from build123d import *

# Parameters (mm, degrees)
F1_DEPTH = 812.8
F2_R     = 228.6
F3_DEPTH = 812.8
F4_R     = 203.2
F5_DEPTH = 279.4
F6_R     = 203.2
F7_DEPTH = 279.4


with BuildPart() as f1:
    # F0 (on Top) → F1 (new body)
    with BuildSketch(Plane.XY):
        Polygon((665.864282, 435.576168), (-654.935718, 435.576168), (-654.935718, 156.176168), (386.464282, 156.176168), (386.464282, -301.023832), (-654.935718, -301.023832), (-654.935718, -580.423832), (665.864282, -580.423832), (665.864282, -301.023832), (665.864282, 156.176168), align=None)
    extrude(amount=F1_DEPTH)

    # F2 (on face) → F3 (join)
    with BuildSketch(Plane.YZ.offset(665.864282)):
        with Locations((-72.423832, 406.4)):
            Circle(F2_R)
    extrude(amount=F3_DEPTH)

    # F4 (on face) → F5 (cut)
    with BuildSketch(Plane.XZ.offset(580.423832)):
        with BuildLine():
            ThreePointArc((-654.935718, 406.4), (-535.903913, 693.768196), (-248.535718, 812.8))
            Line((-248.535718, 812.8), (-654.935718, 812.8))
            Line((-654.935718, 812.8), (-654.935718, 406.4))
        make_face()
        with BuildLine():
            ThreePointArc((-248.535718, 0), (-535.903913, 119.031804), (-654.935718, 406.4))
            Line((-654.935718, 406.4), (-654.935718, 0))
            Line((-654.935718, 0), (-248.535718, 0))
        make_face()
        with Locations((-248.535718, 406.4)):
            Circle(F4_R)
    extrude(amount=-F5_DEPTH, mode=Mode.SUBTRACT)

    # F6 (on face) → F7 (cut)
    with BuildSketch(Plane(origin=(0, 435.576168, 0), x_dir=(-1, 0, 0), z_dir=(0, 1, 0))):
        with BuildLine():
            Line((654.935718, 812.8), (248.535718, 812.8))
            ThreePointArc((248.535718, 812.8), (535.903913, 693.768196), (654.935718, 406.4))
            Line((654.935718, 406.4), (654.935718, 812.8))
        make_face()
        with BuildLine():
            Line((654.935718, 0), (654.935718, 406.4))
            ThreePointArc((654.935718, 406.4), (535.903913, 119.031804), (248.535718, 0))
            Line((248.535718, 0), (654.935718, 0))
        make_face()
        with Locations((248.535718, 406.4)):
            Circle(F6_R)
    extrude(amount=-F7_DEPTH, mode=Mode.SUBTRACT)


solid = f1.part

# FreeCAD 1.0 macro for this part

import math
import FreeCAD as App
import Part
import Sketcher

V = App.Vector
Q = App.Units.Quantity

doc = App.newDocument("Part")
body = doc.addObject("PartDesign::Body", "Body")

sketch1 = body.newObject("Sketcher::SketchObject", "Sketch")
sketch1.AttachmentSupport = (doc.getObject("XY_Plane"), [""])
sketch1.MapMode = "FlatFace"
sketch1.addGeometry(Part.LineSegment(V(666, 436, 0), V(-655, 436, 0)), False)
sketch1.addGeometry(Part.LineSegment(V(-655, 436, 0), V(-655, 156, 0)), False)
sketch1.addGeometry(Part.LineSegment(V(-655, 156, 0), V(386, 156, 0)), False)
sketch1.addGeometry(Part.LineSegment(V(386, 156, 0), V(386, -301, 0)), False)
sketch1.addGeometry(Part.LineSegment(V(386, -301, 0), V(-655, -301, 0)), False)
sketch1.addGeometry(Part.LineSegment(V(-655, -301, 0), V(-655, -580, 0)), False)
sketch1.addGeometry(Part.LineSegment(V(-655, -580, 0), V(666, -580, 0)), False)
sketch1.addGeometry(Part.LineSegment(V(666, -580, 0), V(666, 436, 0)), False)
sketch1.addConstraint(Sketcher.Constraint("Coincident", 0, 2, 1, 1))
sketch1.addConstraint(Sketcher.Constraint("Coincident", 1, 2, 2, 1))
sketch1.addConstraint(Sketcher.Constraint("Coincident", 2, 2, 3, 1))
sketch1.addConstraint(Sketcher.Constraint("Coincident", 3, 2, 4, 1))
sketch1.addConstraint(Sketcher.Constraint("Coincident", 4, 2, 5, 1))
sketch1.addConstraint(Sketcher.Constraint("Coincident", 5, 2, 6, 1))
sketch1.addConstraint(Sketcher.Constraint("Coincident", 6, 2, 7, 1))
sketch1.addConstraint(Sketcher.Constraint("Coincident", 7, 2, 0, 1))
sketch1.addConstraint(Sketcher.Constraint("Horizontal", 0))
sketch1.addConstraint(Sketcher.Constraint("Vertical", 1))
sketch1.addConstraint(Sketcher.Constraint("Horizontal", 2))
sketch1.addConstraint(Sketcher.Constraint("Vertical", 3))
sketch1.addConstraint(Sketcher.Constraint("Horizontal", 4))
sketch1.addConstraint(Sketcher.Constraint("Vertical", 5))
sketch1.addConstraint(Sketcher.Constraint("Horizontal", 6))
sketch1.addConstraint(Sketcher.Constraint("Vertical", 7))
sketch1.addConstraint(Sketcher.Constraint("Vertical", 1, 2, 4, 2))
sketch1.addConstraint(Sketcher.Constraint("Equal", 1, 5))
sketch1.addConstraint(Sketcher.Constraint("DistanceX", 0, 2, 0, 1, Q("52 in")))
sketch1.addConstraint(Sketcher.Constraint("DistanceX", 2, 1, 2, 2, Q("41 in")))
sketch1.addConstraint(Sketcher.Constraint("DistanceY", 1, 2, 1, 1, Q("11 in")))
sketch1.addConstraint(Sketcher.Constraint("DistanceY", 3, 2, 3, 1, Q("18 in")))
sketch1.addConstraint(Sketcher.Constraint("DistanceX", 0, 2, -1, 1, 654.935718))
sketch1.addConstraint(Sketcher.Constraint("DistanceY", -1, 1, 0, 2, 435.576168))
pad1 = body.newObject("PartDesign::Pad", "Pad")
pad1.Profile = sketch1
pad1.Length = Q("32 in")

sketch2 = body.newObject("Sketcher::SketchObject", "Sketch001")
sketch2.AttachmentSupport = (doc.getObject("YZ_Plane"), [""])
sketch2.MapMode = "FlatFace"
sketch2.AttachmentOffset = App.Placement(V(0, 0, 665.864282), App.Rotation())
sketch2.addGeometry(Part.Circle(V(-72, 406, 0), V(0, 0, 1), 229), False)
sketch2.addConstraint(Sketcher.Constraint("Diameter", 0, Q("18 in")))
sketch2.addConstraint(Sketcher.Constraint("DistanceY", -1, 1, 0, 3, Q("16 in")))
sketch2.addConstraint(Sketcher.Constraint("DistanceX", 0, 3, -1, 1, 72.423832))
pad2 = body.newObject("PartDesign::Pad", "Pad001")
pad2.Profile = sketch2
pad2.Length = Q("32 in")

sketch3 = body.newObject("Sketcher::SketchObject", "Sketch002")
sketch3.AttachmentSupport = (doc.getObject("XZ_Plane"), [""])
sketch3.MapMode = "FlatFace"
sketch3.AttachmentOffset = App.Placement(V(0, 0, 580.423832), App.Rotation())
sketch3.addGeometry(Part.ArcOfCircle(Part.Circle(V(-249, 406, 0), V(0, 0, 1), 406), math.radians(90), math.radians(180)), False)
sketch3.addGeometry(Part.LineSegment(V(-249, 813, 0), V(-655, 813, 0)), False)
sketch3.addGeometry(Part.LineSegment(V(-655, 813, 0), V(-655, 406, 0)), False)
sketch3.addGeometry(Part.ArcOfCircle(Part.Circle(V(-249, 406, 0), V(0, 0, 1), 406), math.radians(-180), math.radians(-90)), False)
sketch3.addGeometry(Part.LineSegment(V(-655, 406, 0), V(-655, 0, 0)), False)
sketch3.addGeometry(Part.LineSegment(V(-655, 0, 0), V(-249, 0, 0)), False)
sketch3.addGeometry(Part.Circle(V(-249, 406, 0), V(0, 0, 1), 203), False)
sketch3.addConstraint(Sketcher.Constraint("Tangent", 0, 1, 1, 1))
sketch3.addConstraint(Sketcher.Constraint("Coincident", 1, 2, 2, 1))
sketch3.addConstraint(Sketcher.Constraint("Tangent", 2, 2, 0, 2))
sketch3.addConstraint(Sketcher.Constraint("Tangent", 3, 1, 4, 1))
sketch3.addConstraint(Sketcher.Constraint("Coincident", 4, 2, 5, 1))
sketch3.addConstraint(Sketcher.Constraint("Tangent", 5, 2, 3, 2))
sketch3.addConstraint(Sketcher.Constraint("Horizontal", 1))
sketch3.addConstraint(Sketcher.Constraint("Vertical", 2))
sketch3.addConstraint(Sketcher.Constraint("Vertical", 4))
sketch3.addConstraint(Sketcher.Constraint("Horizontal", 5))
sketch3.addConstraint(Sketcher.Constraint("Coincident", 3, 3, 0, 3))
sketch3.addConstraint(Sketcher.Constraint("Coincident", 6, 3, 0, 3))
sketch3.addConstraint(Sketcher.Constraint("Equal", 0, 3))
sketch3.addConstraint(Sketcher.Constraint("PointOnObject", 4, 2, -1))
sketch3.addConstraint(Sketcher.Constraint("Diameter", 6, Q("16 in")))
sketch3.addConstraint(Sketcher.Constraint("Radius", 0, Q("16.0000001 in")))
sketch3.addConstraint(Sketcher.Constraint("DistanceX", 6, 3, -1, 1, 248.535718))
pocket1 = body.newObject("PartDesign::Pocket", "Pocket")
pocket1.Profile = sketch3
pocket1.Length = Q("11 in")

sketch4 = body.newObject("Sketcher::SketchObject", "Sketch003")
sketch4.AttachmentSupport = (doc.getObject("XZ_Plane"), [""])
sketch4.MapMode = "FlatFace"
sketch4.AttachmentOffset = App.Placement(V(0, 0, -435.576168), App.Rotation())
sketch4.addGeometry(Part.LineSegment(V(-655, 813, 0), V(-249, 813, 0)), False)
sketch4.addGeometry(Part.ArcOfCircle(Part.Circle(V(-249, 406, 0), V(0, 0, 1), 406), math.radians(90), math.radians(180)), False)
sketch4.addGeometry(Part.LineSegment(V(-655, 406, 0), V(-655, 813, 0)), False)
sketch4.addGeometry(Part.LineSegment(V(-655, 0, 0), V(-655, 406, 0)), False)
sketch4.addGeometry(Part.ArcOfCircle(Part.Circle(V(-249, 406, 0), V(0, 0, 1), 406), math.radians(-180), math.radians(-90)), False)
sketch4.addGeometry(Part.LineSegment(V(-249, 0, 0), V(-655, 0, 0)), False)
sketch4.addGeometry(Part.Circle(V(-249, 406, 0), V(0, 0, 1), 203), False)
sketch4.addConstraint(Sketcher.Constraint("Tangent", 0, 2, 1, 1))
sketch4.addConstraint(Sketcher.Constraint("Tangent", 1, 2, 2, 1))
sketch4.addConstraint(Sketcher.Constraint("Coincident", 2, 2, 0, 1))
sketch4.addConstraint(Sketcher.Constraint("Tangent", 3, 2, 4, 1))
sketch4.addConstraint(Sketcher.Constraint("Tangent", 4, 2, 5, 1))
sketch4.addConstraint(Sketcher.Constraint("Coincident", 5, 2, 3, 1))
sketch4.addConstraint(Sketcher.Constraint("Horizontal", 0))
sketch4.addConstraint(Sketcher.Constraint("Vertical", 2))
sketch4.addConstraint(Sketcher.Constraint("Vertical", 3))
sketch4.addConstraint(Sketcher.Constraint("Horizontal", 5))
sketch4.addConstraint(Sketcher.Constraint("Coincident", 4, 3, 1, 3))
sketch4.addConstraint(Sketcher.Constraint("Coincident", 6, 3, 1, 3))
sketch4.addConstraint(Sketcher.Constraint("Equal", 1, 4))
sketch4.addConstraint(Sketcher.Constraint("PointOnObject", 4, 2, -1))
sketch4.addConstraint(Sketcher.Constraint("Diameter", 6, Q("16 in")))
sketch4.addConstraint(Sketcher.Constraint("Radius", 1, Q("16.0000001 in")))
sketch4.addConstraint(Sketcher.Constraint("DistanceX", 6, 3, -1, 1, 248.535718))
pocket2 = body.newObject("PartDesign::Pocket", "Pocket001")
pocket2.Profile = sketch4
pocket2.Length = Q("11 in")
pocket2.Reversed = True

doc.recompute()
